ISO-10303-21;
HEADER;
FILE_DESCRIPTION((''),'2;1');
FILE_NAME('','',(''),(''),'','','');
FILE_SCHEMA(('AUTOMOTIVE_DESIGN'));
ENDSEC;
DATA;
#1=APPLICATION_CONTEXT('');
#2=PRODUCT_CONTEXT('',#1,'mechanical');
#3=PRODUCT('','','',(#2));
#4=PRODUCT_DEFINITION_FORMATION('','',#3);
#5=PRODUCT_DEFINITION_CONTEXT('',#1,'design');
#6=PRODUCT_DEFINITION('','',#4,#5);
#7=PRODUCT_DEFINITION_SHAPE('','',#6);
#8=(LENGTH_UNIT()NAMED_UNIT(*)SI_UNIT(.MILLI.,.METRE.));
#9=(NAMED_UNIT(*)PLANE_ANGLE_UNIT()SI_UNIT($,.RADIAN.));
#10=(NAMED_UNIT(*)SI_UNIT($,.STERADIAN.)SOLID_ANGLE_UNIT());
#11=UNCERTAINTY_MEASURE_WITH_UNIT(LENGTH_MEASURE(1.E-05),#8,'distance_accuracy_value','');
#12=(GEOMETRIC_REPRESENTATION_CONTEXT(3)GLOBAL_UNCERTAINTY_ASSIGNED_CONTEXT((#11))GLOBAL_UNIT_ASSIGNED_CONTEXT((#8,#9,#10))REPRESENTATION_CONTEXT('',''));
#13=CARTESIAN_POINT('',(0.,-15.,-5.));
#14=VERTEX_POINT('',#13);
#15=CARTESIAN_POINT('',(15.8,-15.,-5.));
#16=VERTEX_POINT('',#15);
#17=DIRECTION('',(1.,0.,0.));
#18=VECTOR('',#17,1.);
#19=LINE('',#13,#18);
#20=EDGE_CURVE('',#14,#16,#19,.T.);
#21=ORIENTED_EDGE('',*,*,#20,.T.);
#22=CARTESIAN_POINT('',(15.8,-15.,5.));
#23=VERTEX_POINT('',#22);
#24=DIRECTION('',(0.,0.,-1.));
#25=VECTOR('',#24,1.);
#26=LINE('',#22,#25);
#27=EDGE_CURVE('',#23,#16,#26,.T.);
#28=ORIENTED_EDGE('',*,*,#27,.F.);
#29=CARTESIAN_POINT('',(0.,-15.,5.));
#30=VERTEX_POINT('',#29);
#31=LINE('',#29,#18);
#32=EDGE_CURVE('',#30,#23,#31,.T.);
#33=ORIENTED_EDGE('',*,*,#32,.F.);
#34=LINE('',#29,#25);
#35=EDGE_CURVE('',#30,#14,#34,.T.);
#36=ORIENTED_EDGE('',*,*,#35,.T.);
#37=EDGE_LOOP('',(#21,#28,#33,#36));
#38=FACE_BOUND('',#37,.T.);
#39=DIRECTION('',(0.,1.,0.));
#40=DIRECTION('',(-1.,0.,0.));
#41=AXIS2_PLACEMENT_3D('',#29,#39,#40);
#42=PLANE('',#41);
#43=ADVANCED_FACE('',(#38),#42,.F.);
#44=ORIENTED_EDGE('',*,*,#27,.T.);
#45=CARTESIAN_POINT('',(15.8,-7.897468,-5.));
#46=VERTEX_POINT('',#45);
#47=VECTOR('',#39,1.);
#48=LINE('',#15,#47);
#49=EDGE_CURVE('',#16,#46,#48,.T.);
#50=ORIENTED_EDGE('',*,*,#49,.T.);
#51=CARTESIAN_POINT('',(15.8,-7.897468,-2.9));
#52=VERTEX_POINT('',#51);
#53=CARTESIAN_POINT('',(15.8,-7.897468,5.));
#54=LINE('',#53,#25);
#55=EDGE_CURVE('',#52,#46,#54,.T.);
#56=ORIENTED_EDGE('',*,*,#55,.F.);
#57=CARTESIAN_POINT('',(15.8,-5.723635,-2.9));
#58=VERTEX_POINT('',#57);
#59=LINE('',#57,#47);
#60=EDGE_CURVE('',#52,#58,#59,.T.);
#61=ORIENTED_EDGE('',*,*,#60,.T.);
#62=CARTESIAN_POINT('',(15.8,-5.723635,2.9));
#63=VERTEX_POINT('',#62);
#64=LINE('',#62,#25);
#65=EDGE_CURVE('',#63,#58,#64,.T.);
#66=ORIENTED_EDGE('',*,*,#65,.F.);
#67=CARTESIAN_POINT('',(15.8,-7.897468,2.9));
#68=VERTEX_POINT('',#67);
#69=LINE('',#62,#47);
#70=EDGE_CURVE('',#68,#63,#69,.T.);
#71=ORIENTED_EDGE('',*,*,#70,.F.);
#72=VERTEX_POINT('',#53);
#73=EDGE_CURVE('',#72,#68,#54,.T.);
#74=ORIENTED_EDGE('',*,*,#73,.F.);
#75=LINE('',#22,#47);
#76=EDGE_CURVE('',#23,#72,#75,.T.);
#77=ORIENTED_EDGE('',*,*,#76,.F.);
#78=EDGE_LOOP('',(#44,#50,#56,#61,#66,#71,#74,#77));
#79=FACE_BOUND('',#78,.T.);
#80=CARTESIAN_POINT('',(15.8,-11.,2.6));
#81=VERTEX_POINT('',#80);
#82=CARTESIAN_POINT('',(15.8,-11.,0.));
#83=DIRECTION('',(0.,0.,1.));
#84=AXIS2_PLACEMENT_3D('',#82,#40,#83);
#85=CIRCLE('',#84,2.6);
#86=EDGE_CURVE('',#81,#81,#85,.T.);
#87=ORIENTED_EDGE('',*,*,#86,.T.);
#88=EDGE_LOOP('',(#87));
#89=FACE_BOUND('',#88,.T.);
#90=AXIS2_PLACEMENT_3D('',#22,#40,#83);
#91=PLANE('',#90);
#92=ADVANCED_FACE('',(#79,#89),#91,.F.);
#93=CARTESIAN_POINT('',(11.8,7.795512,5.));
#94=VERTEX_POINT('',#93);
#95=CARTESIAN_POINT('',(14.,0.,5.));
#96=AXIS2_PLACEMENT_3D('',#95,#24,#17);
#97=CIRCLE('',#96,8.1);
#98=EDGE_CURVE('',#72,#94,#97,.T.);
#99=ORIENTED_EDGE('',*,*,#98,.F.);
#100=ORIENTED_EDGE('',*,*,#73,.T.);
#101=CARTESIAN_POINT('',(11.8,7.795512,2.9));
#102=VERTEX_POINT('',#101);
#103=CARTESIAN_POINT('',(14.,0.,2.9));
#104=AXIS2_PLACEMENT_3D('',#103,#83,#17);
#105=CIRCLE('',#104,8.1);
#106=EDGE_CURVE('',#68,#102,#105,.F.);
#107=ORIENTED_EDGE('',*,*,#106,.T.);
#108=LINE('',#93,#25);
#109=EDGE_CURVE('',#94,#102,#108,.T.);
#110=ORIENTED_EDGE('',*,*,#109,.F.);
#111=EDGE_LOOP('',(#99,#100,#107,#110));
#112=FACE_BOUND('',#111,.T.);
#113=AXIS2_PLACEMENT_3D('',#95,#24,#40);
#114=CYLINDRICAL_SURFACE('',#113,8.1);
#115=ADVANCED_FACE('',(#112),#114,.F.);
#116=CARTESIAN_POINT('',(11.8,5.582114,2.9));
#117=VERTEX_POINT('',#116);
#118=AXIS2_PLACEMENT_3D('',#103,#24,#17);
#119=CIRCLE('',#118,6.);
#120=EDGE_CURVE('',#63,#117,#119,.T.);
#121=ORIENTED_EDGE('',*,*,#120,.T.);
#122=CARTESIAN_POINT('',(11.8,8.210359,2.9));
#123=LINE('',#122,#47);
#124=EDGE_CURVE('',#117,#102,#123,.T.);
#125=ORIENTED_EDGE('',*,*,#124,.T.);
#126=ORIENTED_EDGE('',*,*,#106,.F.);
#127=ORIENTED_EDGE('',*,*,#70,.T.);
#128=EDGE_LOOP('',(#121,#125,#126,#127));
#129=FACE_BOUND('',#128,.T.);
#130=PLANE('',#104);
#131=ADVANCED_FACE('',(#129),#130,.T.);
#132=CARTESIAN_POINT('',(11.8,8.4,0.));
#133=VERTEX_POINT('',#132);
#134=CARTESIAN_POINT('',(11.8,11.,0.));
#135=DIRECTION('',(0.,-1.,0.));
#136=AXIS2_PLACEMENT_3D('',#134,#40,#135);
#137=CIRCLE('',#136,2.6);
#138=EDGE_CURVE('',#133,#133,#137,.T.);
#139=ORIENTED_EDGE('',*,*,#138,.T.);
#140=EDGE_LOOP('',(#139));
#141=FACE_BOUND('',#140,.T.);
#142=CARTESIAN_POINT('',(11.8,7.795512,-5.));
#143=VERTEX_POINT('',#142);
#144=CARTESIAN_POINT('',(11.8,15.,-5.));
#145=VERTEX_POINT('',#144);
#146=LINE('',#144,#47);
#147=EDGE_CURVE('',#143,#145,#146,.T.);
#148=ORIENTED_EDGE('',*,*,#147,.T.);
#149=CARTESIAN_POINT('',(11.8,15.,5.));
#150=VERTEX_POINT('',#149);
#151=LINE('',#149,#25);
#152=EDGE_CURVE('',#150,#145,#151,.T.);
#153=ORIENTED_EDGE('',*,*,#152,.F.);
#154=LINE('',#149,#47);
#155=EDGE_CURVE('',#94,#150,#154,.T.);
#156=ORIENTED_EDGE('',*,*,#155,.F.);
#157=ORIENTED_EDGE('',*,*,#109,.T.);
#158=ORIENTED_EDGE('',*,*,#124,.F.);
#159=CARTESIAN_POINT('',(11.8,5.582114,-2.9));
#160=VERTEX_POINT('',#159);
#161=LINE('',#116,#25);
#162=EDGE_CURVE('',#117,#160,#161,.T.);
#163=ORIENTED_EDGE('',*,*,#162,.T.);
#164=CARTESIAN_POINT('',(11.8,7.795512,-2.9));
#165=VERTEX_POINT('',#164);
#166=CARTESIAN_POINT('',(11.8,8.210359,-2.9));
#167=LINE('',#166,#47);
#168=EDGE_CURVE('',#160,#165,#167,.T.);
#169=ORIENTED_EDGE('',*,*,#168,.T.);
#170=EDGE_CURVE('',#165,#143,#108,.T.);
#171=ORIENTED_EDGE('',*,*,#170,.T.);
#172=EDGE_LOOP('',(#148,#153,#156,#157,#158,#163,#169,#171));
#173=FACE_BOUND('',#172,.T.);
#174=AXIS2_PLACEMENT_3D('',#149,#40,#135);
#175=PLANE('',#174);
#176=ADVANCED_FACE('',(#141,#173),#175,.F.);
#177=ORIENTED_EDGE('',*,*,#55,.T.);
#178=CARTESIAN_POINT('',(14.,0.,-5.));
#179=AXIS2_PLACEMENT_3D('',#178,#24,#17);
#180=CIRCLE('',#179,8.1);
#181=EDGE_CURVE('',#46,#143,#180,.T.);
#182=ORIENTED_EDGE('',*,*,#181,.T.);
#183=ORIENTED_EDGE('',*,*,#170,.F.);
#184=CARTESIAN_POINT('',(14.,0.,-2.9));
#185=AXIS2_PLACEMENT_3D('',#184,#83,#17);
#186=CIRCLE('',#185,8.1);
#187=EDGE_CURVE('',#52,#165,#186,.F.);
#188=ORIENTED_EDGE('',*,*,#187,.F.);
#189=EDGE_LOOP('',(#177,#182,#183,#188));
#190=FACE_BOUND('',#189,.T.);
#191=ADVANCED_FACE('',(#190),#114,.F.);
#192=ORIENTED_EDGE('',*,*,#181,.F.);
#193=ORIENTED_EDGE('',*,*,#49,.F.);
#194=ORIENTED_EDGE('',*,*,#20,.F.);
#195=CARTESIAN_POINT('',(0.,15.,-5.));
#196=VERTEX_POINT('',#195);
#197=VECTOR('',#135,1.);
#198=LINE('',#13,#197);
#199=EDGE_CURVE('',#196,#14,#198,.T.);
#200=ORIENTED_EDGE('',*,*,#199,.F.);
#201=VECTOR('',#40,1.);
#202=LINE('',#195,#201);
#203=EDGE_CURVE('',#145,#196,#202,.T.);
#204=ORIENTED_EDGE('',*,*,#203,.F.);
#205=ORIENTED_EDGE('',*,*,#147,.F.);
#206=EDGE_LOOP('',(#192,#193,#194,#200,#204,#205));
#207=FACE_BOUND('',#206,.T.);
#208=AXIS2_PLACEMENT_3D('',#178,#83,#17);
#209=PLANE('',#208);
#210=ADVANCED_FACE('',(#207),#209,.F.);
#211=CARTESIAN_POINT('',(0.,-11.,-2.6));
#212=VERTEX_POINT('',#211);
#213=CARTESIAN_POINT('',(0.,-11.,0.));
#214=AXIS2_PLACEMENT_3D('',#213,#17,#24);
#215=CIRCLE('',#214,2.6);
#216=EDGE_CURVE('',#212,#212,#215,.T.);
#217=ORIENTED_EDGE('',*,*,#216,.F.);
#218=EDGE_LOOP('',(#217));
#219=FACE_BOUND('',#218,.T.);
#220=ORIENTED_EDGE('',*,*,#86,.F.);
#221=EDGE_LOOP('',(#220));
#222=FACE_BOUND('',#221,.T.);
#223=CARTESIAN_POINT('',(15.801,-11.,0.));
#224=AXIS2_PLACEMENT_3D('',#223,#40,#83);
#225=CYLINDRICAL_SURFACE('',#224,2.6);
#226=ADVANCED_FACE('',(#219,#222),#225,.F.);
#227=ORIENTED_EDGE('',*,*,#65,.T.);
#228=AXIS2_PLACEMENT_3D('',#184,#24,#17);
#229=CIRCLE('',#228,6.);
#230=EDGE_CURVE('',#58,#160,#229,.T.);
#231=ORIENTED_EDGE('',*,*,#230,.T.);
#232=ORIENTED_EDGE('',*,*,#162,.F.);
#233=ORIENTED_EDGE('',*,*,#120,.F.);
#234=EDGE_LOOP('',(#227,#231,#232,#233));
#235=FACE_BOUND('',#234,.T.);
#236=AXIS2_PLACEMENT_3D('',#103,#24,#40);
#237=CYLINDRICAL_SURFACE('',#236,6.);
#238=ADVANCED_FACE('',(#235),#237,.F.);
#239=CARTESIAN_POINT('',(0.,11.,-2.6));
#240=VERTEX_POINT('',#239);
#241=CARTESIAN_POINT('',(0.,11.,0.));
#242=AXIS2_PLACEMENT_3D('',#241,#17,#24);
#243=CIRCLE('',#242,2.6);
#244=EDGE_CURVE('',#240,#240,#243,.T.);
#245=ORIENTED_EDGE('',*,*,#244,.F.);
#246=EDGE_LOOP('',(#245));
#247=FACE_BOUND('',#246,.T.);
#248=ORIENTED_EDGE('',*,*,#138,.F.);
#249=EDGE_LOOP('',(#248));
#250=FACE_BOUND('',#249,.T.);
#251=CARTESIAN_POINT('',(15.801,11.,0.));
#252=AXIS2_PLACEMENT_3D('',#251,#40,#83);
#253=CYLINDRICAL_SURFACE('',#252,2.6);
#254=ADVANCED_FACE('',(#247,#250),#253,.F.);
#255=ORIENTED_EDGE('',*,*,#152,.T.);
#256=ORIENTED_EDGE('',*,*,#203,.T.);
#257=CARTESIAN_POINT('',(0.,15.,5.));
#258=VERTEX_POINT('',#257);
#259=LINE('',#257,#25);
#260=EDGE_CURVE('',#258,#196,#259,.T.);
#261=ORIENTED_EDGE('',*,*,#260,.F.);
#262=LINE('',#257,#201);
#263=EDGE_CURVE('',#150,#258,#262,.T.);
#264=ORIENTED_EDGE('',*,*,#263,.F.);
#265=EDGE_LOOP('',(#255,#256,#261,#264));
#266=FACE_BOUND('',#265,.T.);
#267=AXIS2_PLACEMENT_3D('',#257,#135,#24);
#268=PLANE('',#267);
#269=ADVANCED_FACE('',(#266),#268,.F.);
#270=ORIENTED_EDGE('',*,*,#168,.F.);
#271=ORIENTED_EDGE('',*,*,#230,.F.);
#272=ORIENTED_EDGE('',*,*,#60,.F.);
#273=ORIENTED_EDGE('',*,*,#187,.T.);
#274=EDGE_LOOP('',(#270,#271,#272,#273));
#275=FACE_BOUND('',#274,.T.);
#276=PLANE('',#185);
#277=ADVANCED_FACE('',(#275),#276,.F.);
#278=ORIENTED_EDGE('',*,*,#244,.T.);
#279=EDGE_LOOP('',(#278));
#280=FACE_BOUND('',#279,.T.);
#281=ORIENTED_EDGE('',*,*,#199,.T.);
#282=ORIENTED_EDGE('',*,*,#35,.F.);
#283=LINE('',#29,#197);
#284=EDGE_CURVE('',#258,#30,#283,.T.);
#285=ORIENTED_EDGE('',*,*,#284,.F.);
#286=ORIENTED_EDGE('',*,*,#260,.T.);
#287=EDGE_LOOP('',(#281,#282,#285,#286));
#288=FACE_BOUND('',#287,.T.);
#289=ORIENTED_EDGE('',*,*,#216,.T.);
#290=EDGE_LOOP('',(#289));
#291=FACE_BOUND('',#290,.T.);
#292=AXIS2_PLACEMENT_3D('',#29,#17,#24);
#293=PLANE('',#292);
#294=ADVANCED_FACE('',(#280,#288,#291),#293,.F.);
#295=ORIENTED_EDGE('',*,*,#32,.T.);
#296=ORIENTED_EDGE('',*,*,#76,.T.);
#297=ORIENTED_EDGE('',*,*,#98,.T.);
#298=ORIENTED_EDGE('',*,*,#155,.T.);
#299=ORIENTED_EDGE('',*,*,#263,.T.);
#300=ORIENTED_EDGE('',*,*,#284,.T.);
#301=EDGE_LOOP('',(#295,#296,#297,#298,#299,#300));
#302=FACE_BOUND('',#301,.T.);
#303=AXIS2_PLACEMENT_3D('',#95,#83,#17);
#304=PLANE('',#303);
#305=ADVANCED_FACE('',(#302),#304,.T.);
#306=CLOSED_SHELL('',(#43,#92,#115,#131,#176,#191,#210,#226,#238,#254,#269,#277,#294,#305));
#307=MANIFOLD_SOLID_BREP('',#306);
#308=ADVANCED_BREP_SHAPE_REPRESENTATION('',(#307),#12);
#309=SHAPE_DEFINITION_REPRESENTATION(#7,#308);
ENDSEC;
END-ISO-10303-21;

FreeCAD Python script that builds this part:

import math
import FreeCAD as App
import Part
import Sketcher
Q = App.Units.Quantity

doc = App.newDocument("Part")
body = doc.addObject("PartDesign::Body", "Body")

sketch1 = doc.addObject("Sketcher::SketchObject", "Sketch")
body.addObject(sketch1)
sketch1.AttachmentSupport = (doc.XY_Plane, [""])
sketch1.MapMode = "FlatFace"
sketch1.addGeometry([
    Part.LineSegment(App.Vector(0, 15, 0), App.Vector(0, -15, 0)),
    Part.LineSegment(App.Vector(0, -15, 0), App.Vector(15.8, -15, 0)),
    Part.LineSegment(App.Vector(15.8, -15, 0), App.Vector(15.8, -7.897468, 0)),
    Part.ArcOfCircle(Part.Circle(App.Vector(14, 0, 0), App.Vector(0, 0, 1), 8.1), math.radians(105.759792), math.radians(282.839588)),
    Part.LineSegment(App.Vector(11.8, 7.795512, 0), App.Vector(11.8, 15, 0)),
    Part.LineSegment(App.Vector(11.8, 15, 0), App.Vector(0, 15, 0)),
], False)
sketch1.addConstraint([
    Sketcher.Constraint("Coincident", 0, 2, 1, 1),
    Sketcher.Constraint("Coincident", 1, 2, 2, 1),
    Sketcher.Constraint("Coincident", 2, 2, 3, 2),
    Sketcher.Constraint("Coincident", 3, 1, 4, 1),
    Sketcher.Constraint("Coincident", 4, 2, 5, 1),
    Sketcher.Constraint("Coincident", 5, 2, 0, 1),
    Sketcher.Constraint("Vertical", 0),
    Sketcher.Constraint("Horizontal", 1),
    Sketcher.Constraint("Vertical", 2),
    Sketcher.Constraint("Vertical", 4),
    Sketcher.Constraint("Horizontal", 5),
    Sketcher.Constraint("Symmetric", 0, 2, 5, 2, -1, 1),
    Sketcher.Constraint("PointOnObject", 3, 3, -1),
    Sketcher.Constraint("Radius", 3, Q("8.1 mm")),
    Sketcher.Constraint("DistanceY", 0, 2, 0, 1, Q("30 mm")),
    Sketcher.Constraint("DistanceX", 1, 1, 1, 2, Q("15.8 mm")),
    Sketcher.Constraint("DistanceX", 5, 2, 5, 1, Q("11.8 mm")),
    Sketcher.Constraint("DistanceX", -1, 1, 3, 3, Q("14 mm")),
])
pad1 = doc.addObject("PartDesign::Pad", "Pad")
body.addObject(pad1)
pad1.Profile = sketch1
pad1.Length = 10
pad1.Midplane = True

sketch2 = doc.addObject("Sketcher::SketchObject", "Sketch001")
body.addObject(sketch2)
sketch2.AttachmentSupport = (doc.XY_Plane, [""])
sketch2.MapMode = "FlatFace"
sketch2.addGeometry([
    Part.LineSegment(App.Vector(11.8, 5.582114, 0), App.Vector(11.8, 8.210359, 0)),
    Part.ArcOfCircle(Part.Circle(App.Vector(14, 0, 0), App.Vector(0, 0, 1), 8.5), math.radians(105.000266), math.radians(282.225789)),
    Part.LineSegment(App.Vector(15.8, -8.307226, 0), App.Vector(15.8, -5.723635, 0)),
    Part.ArcOfCircle(Part.Circle(App.Vector(14, 0, 0), App.Vector(0, 0, 1), 6), math.radians(111.510188), math.radians(287.457603)),
], False)
sketch2.addConstraint([
    Sketcher.Constraint("Coincident", 0, 2, 1, 1),
    Sketcher.Constraint("Coincident", 1, 2, 2, 1),
    Sketcher.Constraint("Coincident", 2, 2, 3, 2),
    Sketcher.Constraint("Coincident", 3, 1, 0, 1),
    Sketcher.Constraint("Vertical", 0),
    Sketcher.Constraint("Vertical", 2),
    Sketcher.Constraint("Coincident", 3, 3, 1, 3),
    Sketcher.Constraint("PointOnObject", 1, 3, -1),
    Sketcher.Constraint("Radius", 3, Q("6 mm")),
    Sketcher.Constraint("Radius", 1, Q("8.5 mm")),
    Sketcher.Constraint("DistanceX", -1, 1, 1, 3, Q("14 mm")),
    Sketcher.Constraint("DistanceX", 0, 2, 1, 2, Q("4 mm")),
    Sketcher.Constraint("DistanceX", -1, 1, 0, 2, Q("11.8 mm")),
])
pad2 = doc.addObject("PartDesign::Pad", "Pad001")
body.addObject(pad2)
pad2.Profile = sketch2
pad2.Length = 5.8
pad2.Midplane = True

sketch3 = doc.addObject("Sketcher::SketchObject", "Sketch002")
body.addObject(sketch3)
sketch3.AttachmentSupport = (doc.YZ_Plane, [""])
sketch3.MapMode = "FlatFace"
sketch3.addGeometry(Part.Circle(App.Vector(11, 0, 0), App.Vector(0, 0, 1), 2.6), False)
sketch3.addConstraint([
    Sketcher.Constraint("PointOnObject", 0, 3, -1),
    Sketcher.Constraint("Diameter", 0, Q("5.2 mm")),
    Sketcher.Constraint("DistanceX", -1, 1, 0, 3, Q("11 mm")),
])
pocket1 = doc.addObject("PartDesign::Pocket", "Pocket")
body.addObject(pocket1)
pocket1.Profile = sketch3
pocket1.Type = "UpToFirst"
pocket1.Reversed = True

sketch4 = doc.addObject("Sketcher::SketchObject", "Sketch003")
body.addObject(sketch4)
sketch4.AttachmentSupport = (doc.YZ_Plane, [""])
sketch4.MapMode = "FlatFace"
sketch4.addGeometry(Part.Circle(App.Vector(-11, 0, 0), App.Vector(0, 0, 1), 2.6), False)
sketch4.addConstraint([
    Sketcher.Constraint("PointOnObject", 0, 3, -1),
    Sketcher.Constraint("Diameter", 0, Q("5.2 mm")),
    Sketcher.Constraint("DistanceX", 0, 3, -1, 1, Q("11 mm")),
])
pocket2 = doc.addObject("PartDesign::Pocket", "Pocket001")
body.addObject(pocket2)
pocket2.Profile = sketch4
pocket2.Type = "UpToFirst"
pocket2.Reversed = True

doc.recompute()
